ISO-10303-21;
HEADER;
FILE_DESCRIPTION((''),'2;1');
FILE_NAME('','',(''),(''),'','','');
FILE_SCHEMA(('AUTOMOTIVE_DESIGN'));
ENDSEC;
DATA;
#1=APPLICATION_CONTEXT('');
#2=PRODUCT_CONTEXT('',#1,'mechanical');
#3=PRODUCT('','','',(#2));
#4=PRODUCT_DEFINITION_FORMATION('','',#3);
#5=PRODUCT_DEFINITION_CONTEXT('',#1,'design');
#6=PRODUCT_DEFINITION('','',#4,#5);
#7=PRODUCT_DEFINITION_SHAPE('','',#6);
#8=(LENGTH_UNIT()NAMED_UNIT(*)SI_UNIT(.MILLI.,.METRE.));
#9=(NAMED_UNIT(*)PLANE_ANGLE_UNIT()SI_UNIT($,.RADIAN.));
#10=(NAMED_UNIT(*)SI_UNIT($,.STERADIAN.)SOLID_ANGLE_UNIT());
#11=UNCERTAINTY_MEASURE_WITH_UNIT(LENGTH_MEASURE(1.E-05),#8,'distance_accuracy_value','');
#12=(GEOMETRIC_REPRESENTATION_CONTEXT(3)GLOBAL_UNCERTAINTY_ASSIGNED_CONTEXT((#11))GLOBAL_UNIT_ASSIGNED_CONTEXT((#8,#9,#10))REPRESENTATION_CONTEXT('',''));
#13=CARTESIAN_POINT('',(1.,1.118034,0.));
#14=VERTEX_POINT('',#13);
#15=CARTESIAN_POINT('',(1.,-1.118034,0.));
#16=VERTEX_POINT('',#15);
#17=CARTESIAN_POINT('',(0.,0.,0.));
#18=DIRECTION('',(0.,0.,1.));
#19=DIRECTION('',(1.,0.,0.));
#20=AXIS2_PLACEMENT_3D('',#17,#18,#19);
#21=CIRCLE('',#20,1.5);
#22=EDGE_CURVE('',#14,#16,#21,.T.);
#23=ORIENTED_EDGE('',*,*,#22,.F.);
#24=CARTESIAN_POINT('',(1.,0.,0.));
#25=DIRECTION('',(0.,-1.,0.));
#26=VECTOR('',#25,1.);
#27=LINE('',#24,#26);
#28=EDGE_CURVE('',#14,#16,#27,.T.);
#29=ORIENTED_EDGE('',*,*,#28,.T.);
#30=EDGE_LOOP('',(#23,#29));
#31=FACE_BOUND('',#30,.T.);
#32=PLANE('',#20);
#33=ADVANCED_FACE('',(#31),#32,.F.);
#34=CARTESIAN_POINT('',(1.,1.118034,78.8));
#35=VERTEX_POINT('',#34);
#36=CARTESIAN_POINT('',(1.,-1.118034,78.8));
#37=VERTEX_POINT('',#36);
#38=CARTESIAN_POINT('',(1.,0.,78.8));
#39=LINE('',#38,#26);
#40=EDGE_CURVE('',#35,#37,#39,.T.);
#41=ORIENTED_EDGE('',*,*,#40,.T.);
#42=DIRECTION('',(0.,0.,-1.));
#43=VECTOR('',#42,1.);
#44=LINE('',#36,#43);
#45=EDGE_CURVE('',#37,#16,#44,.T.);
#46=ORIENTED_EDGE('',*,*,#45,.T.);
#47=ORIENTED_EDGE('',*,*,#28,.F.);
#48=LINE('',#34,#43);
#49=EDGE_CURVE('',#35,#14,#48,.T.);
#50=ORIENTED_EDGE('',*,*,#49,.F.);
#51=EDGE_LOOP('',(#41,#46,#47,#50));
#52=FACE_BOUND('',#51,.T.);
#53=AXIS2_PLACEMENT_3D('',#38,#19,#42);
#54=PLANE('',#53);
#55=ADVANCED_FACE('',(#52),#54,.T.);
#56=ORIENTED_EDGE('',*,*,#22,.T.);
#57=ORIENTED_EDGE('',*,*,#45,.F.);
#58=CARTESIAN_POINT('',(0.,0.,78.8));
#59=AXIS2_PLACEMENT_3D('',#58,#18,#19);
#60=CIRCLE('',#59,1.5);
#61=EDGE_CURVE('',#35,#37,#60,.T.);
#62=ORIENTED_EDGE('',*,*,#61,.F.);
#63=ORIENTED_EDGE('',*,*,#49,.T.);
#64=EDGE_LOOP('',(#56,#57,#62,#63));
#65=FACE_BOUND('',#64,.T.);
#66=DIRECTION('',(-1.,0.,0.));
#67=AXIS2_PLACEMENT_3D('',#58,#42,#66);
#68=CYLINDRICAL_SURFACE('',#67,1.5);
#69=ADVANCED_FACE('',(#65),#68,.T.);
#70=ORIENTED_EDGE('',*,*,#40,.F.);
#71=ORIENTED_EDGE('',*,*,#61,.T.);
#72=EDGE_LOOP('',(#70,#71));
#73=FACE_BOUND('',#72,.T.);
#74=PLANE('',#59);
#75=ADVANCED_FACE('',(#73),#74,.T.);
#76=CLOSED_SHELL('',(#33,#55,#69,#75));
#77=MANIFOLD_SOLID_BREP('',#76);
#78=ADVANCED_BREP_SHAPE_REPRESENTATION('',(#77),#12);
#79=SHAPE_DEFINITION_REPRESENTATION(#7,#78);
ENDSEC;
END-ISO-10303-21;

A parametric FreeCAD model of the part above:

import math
import FreeCAD as App
import Part
import Sketcher
from FreeCAD import Vector

doc = App.newDocument("Part")
body = doc.addObject("PartDesign::Body", "Body")

# Sketch on XY plane
sketch1 = body.newObject("Sketcher::SketchObject", "Sketch")
sketch1.AttachmentSupport = (doc.getObject("XY_Plane"), [""])
sketch1.MapMode = "FlatFace"
sketch1.addGeometry(Part.LineSegment(Vector(1, -1.1, 0), Vector(1, 1.1, 0)), False)
sketch1.addGeometry(Part.ArcOfCircle(Part.Circle(Vector(0, 0, 0), Vector(0, 0, 1), 1.5), math.radians(48), math.radians(312)), False)
sketch1.addConstraint(Sketcher.Constraint("Coincident", 0, 1, 1, 2))
sketch1.addConstraint(Sketcher.Constraint("Coincident", 1, 1, 0, 2))
sketch1.addConstraint(Sketcher.Constraint("Vertical", 0))
sketch1.addConstraint(Sketcher.Constraint("Coincident", 1, 3, -1, 1))
sketch1.addConstraint(Sketcher.Constraint("Radius", 1, 1.5))
sketch1.addConstraint(Sketcher.Constraint("DistanceX", -1, 1, 0, 1, 1.0))
pad1 = body.newObject("PartDesign::Pad", "Pad")
pad1.Profile = sketch1
pad1.Length = 78.8

doc.recompute()
